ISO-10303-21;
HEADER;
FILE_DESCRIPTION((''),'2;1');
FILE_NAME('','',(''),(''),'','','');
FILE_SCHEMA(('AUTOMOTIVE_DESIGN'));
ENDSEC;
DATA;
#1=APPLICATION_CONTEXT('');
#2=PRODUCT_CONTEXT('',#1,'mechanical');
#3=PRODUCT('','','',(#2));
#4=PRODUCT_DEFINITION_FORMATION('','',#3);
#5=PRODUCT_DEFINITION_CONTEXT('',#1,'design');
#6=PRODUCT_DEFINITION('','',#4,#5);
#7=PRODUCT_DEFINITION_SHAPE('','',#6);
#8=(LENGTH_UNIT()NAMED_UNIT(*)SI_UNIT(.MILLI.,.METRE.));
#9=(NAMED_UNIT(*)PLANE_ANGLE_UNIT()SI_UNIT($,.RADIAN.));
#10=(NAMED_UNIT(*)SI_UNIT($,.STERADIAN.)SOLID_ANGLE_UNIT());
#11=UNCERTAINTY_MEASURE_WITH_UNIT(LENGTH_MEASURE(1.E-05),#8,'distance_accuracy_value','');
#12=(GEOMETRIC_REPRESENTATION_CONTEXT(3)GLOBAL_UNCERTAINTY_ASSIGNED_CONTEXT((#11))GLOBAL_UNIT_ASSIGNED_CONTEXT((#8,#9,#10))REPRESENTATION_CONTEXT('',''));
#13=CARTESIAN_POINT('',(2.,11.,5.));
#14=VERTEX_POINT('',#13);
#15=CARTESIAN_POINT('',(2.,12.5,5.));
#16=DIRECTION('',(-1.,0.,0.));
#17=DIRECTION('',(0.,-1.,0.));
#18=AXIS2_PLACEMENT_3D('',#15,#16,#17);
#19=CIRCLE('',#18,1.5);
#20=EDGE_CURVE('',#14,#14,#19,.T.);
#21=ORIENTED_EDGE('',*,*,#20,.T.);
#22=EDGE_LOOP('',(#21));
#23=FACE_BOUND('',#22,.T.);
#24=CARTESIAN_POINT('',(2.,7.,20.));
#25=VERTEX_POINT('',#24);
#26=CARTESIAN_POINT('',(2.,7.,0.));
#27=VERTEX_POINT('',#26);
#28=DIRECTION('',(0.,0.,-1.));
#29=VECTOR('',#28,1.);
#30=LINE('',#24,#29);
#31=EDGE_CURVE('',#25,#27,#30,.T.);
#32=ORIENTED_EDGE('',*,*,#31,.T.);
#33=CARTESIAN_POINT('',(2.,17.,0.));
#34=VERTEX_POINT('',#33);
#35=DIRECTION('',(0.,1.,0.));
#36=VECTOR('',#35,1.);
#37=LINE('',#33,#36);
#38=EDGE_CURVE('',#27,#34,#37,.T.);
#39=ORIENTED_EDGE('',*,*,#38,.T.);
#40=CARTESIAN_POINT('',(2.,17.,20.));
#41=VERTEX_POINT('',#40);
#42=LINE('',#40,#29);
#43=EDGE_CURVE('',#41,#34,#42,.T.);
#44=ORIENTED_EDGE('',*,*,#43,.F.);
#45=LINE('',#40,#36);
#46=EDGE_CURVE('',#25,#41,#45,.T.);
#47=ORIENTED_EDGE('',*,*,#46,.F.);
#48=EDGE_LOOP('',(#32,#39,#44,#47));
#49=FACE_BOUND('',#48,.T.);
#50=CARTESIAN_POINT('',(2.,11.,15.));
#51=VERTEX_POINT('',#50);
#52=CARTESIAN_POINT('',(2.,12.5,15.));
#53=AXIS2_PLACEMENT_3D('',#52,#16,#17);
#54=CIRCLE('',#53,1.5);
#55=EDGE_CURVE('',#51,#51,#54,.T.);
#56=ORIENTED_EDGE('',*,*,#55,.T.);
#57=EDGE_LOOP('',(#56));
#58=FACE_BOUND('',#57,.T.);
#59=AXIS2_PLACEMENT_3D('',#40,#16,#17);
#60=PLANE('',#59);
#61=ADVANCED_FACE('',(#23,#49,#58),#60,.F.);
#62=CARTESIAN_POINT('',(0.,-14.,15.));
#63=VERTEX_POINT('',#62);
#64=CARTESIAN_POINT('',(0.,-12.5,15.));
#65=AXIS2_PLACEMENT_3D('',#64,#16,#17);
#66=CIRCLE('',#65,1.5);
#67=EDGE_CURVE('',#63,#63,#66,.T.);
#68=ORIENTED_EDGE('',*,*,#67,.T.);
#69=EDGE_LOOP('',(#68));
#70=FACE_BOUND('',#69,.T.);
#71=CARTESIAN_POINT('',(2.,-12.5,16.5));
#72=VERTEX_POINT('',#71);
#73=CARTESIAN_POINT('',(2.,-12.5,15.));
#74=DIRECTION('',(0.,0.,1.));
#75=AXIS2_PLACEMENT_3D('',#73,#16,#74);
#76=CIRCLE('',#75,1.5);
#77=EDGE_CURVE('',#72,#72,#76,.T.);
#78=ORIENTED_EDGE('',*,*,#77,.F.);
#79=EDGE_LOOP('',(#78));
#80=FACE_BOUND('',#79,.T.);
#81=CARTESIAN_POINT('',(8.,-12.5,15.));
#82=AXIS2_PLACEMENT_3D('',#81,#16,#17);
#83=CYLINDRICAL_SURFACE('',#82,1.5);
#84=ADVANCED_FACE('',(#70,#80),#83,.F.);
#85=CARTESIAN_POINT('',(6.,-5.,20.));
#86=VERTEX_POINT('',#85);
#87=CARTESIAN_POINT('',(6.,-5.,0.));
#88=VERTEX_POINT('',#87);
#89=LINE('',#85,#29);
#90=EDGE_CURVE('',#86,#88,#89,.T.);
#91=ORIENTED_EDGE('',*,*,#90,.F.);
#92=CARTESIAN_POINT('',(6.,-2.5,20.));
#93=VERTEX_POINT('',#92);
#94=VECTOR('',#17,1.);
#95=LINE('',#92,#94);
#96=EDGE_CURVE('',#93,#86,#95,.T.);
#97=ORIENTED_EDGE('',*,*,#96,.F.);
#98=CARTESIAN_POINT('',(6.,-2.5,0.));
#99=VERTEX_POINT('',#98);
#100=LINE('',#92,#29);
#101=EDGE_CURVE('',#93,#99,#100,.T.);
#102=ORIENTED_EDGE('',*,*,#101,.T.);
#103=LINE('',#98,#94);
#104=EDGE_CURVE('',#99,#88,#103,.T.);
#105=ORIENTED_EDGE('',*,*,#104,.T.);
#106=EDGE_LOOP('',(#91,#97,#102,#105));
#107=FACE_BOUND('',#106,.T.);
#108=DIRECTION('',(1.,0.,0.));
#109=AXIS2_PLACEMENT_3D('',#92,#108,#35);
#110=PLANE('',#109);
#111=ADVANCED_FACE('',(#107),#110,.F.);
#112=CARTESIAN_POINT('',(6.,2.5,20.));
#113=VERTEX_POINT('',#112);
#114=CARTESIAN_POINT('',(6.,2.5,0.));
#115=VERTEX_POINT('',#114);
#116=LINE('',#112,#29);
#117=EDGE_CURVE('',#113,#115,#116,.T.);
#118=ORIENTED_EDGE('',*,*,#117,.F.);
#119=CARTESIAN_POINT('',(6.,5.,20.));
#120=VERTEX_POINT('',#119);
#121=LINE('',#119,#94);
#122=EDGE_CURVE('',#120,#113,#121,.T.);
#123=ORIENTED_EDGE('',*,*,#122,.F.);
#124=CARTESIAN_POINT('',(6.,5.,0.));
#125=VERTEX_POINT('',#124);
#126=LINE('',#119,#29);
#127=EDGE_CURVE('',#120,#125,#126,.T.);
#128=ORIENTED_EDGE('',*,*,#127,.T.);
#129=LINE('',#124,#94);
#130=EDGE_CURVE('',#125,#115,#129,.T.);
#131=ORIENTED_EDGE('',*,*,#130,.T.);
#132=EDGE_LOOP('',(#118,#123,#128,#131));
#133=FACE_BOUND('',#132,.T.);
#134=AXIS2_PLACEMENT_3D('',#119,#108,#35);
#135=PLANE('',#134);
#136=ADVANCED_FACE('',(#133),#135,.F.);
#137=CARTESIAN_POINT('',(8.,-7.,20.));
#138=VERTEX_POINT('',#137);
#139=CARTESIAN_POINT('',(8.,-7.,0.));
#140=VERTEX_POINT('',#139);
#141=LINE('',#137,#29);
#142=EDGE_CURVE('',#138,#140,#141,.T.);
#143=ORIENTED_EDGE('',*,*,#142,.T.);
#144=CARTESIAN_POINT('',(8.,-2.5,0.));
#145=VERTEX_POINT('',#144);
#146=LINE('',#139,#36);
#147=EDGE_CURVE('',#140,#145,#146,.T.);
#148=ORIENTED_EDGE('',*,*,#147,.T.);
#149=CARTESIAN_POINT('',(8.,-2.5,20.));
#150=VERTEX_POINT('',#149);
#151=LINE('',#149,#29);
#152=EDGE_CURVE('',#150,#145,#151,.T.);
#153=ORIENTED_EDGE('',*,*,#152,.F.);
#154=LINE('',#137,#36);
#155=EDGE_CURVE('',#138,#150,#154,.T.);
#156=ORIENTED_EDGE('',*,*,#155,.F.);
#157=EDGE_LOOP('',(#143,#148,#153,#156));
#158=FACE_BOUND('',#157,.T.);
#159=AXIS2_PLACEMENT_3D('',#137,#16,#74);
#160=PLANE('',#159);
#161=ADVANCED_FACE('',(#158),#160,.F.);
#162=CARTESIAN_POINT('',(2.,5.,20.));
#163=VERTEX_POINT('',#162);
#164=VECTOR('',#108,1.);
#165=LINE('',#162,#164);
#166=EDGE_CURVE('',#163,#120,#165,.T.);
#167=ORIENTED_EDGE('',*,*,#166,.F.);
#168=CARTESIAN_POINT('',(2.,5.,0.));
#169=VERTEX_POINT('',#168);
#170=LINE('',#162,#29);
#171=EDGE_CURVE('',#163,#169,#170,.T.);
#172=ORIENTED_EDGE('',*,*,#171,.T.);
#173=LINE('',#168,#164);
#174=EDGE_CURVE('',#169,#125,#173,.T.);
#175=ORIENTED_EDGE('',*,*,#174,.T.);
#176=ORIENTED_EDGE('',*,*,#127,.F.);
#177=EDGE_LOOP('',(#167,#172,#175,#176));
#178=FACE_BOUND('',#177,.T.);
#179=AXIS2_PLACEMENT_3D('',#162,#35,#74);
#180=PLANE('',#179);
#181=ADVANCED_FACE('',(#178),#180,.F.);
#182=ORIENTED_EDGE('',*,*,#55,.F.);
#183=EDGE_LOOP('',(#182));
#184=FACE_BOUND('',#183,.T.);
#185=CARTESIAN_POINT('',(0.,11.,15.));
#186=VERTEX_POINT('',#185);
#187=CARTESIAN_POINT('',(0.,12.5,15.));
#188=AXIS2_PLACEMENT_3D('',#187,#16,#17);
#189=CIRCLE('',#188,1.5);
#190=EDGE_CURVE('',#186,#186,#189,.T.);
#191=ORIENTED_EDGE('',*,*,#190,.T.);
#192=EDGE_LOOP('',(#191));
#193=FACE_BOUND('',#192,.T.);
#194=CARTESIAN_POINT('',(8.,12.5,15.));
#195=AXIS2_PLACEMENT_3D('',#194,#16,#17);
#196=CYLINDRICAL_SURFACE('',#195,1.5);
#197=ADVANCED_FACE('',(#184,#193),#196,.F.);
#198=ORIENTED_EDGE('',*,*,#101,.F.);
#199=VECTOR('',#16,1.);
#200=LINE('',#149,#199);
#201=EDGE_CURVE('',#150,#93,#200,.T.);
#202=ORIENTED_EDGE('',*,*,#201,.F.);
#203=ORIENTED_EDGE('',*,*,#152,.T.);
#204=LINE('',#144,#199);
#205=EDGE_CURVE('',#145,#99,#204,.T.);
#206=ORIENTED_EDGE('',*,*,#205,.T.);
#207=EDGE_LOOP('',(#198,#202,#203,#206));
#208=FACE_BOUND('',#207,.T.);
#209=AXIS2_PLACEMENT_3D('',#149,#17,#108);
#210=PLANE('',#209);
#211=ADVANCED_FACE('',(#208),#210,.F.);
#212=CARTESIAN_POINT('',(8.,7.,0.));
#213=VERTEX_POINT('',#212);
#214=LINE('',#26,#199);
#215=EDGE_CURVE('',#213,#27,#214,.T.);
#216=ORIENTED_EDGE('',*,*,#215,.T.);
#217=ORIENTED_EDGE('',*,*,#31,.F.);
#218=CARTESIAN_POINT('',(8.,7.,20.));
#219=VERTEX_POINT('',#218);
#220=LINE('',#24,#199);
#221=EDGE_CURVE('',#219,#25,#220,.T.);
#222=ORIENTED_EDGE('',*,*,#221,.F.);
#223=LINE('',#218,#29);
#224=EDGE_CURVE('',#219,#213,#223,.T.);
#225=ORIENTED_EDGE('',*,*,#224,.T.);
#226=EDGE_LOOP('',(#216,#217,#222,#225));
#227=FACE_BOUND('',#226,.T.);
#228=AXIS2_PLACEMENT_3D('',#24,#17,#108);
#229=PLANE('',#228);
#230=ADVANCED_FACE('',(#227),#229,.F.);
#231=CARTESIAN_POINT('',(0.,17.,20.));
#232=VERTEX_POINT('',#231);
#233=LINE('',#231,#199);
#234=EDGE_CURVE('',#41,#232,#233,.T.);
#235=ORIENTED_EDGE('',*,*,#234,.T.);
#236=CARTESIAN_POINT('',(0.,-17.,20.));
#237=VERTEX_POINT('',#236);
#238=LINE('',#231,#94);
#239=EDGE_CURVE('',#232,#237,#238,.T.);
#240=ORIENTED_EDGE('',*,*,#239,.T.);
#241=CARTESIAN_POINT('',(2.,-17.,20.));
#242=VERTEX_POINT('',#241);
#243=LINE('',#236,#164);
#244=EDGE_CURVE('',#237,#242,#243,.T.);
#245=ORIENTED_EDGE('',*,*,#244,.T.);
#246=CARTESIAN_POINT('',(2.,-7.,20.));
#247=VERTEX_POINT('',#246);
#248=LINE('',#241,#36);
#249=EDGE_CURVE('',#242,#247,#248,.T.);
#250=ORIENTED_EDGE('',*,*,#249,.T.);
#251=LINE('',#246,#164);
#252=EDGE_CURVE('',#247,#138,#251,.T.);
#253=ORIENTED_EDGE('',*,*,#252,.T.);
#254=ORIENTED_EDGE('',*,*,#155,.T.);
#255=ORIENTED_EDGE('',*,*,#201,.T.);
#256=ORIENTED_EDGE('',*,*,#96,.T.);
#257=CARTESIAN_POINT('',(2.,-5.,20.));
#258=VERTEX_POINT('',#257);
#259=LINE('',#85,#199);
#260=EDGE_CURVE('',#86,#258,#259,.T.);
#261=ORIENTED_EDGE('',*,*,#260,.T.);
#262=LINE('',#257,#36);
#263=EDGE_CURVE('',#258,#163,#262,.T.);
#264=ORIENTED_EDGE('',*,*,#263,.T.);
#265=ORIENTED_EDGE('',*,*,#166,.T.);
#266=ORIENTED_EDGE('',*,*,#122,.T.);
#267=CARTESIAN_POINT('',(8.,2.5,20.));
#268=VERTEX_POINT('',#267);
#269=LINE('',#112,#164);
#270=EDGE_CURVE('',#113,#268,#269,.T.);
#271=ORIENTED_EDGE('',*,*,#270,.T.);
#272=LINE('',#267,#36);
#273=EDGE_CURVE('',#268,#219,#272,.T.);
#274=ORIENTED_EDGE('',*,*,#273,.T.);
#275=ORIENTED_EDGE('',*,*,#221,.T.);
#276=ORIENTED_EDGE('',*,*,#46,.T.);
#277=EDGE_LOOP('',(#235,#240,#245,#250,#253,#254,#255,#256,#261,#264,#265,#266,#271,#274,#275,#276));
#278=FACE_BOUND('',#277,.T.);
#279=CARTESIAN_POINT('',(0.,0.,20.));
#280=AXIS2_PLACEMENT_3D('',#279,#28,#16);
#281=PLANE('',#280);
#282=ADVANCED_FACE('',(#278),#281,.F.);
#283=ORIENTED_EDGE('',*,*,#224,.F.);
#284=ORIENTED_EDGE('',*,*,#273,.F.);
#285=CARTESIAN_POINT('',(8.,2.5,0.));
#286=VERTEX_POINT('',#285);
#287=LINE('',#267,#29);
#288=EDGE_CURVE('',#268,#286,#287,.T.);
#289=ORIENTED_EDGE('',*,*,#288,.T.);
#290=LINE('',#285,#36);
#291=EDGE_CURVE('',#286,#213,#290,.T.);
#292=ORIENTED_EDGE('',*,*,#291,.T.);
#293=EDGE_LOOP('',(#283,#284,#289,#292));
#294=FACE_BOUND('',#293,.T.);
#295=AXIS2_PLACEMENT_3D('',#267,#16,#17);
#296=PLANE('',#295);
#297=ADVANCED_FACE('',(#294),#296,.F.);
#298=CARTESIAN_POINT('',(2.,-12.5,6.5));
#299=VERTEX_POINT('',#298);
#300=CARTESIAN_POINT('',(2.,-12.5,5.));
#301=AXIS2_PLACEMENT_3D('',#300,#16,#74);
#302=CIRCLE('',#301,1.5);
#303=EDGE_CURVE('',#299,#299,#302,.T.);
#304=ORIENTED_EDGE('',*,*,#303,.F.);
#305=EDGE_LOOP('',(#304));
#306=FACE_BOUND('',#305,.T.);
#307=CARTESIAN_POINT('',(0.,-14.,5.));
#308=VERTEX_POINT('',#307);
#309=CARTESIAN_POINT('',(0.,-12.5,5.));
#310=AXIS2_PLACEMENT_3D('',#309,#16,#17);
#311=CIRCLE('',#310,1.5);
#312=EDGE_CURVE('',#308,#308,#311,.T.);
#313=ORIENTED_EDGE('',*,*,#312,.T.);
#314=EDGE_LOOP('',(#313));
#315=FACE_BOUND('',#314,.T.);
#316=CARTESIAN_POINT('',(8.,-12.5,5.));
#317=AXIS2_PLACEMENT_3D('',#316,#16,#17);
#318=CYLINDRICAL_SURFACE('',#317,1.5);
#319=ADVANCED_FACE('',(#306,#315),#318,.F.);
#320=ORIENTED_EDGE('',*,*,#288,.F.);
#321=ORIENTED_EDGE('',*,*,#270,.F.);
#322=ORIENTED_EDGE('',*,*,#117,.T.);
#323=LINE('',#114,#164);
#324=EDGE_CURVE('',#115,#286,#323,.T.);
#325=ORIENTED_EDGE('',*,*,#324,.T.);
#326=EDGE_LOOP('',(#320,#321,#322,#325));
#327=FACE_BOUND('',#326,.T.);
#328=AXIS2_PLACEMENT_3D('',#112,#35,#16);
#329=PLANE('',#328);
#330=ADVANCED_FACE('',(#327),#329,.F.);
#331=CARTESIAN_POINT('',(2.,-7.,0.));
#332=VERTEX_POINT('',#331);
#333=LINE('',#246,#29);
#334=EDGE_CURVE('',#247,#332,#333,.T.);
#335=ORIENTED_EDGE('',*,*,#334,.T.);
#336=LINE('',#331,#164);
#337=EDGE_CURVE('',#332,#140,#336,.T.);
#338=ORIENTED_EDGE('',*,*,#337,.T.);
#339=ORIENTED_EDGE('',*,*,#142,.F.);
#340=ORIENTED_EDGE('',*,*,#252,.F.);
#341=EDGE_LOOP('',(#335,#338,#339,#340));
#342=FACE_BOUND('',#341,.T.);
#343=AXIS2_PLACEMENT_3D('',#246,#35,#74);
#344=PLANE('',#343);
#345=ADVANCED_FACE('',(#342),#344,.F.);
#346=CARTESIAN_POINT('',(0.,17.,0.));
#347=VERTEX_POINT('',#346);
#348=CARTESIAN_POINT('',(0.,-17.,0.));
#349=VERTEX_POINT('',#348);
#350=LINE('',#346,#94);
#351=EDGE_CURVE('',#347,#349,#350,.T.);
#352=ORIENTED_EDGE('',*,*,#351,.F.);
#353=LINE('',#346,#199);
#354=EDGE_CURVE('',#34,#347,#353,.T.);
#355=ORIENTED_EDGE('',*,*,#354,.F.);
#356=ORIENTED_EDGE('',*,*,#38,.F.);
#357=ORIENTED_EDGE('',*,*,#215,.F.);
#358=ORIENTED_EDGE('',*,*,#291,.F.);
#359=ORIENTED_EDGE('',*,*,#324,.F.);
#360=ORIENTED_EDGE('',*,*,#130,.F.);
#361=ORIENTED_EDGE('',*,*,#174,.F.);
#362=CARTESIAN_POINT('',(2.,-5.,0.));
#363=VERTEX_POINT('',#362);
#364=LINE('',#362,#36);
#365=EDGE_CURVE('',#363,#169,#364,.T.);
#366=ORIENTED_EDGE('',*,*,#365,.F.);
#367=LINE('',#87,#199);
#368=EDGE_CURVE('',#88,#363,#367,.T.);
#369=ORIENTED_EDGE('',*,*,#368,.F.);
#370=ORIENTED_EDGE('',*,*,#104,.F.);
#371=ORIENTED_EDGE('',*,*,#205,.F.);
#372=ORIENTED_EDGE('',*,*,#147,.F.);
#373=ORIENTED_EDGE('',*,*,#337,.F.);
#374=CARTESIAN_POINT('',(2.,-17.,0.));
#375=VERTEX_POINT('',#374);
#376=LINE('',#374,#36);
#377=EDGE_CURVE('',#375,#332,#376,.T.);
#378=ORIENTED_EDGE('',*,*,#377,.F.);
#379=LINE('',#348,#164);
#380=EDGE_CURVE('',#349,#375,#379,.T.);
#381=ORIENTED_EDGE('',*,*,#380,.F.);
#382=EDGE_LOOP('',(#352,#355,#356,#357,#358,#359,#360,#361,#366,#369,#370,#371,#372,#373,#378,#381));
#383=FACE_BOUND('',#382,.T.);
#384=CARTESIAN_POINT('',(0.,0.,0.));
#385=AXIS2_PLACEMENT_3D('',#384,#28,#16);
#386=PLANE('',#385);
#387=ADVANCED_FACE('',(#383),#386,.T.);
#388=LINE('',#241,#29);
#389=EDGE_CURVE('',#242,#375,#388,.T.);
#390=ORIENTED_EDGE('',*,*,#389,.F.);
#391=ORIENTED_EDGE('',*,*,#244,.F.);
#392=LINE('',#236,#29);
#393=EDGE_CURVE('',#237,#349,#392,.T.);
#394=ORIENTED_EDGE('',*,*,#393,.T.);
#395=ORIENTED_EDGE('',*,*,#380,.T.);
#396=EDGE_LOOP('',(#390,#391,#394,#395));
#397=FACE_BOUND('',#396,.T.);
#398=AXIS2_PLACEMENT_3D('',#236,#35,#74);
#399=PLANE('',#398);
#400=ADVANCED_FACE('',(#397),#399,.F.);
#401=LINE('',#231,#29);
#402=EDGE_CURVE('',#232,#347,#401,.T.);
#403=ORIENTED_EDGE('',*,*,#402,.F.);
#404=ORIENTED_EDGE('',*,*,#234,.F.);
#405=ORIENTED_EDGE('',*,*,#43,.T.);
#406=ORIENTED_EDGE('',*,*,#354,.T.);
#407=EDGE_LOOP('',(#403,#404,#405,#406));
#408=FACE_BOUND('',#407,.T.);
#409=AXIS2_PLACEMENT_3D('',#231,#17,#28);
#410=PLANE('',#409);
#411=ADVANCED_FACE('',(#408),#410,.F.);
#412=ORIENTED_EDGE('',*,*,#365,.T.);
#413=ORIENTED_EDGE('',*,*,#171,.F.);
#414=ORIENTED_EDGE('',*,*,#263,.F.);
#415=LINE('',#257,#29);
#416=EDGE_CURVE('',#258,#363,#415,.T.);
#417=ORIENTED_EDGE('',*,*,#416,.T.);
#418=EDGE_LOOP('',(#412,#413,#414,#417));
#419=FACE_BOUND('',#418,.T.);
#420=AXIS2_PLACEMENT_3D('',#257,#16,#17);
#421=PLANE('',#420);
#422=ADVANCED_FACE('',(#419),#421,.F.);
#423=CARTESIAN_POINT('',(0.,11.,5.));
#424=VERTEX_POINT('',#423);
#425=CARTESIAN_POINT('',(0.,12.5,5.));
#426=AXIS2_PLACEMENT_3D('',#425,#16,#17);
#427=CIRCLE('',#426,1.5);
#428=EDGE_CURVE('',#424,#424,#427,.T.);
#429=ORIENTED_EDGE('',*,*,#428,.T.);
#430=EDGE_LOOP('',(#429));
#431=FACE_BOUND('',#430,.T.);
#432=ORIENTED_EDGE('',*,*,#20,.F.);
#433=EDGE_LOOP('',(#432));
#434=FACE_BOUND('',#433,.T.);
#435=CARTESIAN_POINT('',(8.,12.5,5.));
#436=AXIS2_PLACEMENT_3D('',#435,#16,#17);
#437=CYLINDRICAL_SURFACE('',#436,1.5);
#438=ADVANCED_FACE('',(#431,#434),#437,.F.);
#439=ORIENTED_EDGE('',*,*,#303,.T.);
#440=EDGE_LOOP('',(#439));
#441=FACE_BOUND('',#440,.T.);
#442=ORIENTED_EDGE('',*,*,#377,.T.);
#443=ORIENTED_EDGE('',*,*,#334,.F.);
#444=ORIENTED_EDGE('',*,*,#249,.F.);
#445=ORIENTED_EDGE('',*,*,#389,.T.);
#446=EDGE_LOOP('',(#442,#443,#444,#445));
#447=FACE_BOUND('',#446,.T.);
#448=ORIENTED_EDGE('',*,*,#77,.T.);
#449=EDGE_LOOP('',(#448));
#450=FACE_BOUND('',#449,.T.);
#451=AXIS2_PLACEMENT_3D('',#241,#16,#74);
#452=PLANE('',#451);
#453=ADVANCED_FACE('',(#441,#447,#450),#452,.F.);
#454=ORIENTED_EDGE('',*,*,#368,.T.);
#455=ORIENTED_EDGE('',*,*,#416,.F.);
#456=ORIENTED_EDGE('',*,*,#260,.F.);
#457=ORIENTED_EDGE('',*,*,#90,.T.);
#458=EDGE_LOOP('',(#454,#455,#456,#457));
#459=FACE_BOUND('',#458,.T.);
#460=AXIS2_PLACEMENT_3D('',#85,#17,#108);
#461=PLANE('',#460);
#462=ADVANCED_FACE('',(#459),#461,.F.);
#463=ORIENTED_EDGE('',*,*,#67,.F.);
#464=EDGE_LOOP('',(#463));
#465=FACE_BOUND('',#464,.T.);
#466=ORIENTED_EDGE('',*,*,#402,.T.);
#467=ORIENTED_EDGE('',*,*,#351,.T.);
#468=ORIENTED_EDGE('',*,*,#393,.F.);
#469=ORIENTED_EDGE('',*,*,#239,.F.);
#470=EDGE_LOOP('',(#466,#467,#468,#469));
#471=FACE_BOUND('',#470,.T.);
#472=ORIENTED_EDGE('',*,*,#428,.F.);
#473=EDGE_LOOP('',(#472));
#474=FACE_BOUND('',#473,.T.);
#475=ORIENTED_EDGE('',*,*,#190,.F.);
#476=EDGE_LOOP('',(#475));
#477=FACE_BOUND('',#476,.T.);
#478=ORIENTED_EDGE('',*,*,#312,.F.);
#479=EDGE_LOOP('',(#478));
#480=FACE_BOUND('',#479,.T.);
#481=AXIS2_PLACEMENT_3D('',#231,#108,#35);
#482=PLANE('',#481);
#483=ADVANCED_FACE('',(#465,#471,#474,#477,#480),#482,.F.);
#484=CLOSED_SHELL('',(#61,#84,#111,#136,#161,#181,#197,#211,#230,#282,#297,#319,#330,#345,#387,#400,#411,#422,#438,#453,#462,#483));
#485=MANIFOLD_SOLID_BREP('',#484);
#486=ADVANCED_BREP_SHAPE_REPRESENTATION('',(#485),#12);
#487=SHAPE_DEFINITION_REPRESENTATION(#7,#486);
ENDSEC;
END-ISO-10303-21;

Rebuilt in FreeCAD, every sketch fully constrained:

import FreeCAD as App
import Part
import Sketcher
from FreeCAD import Vector
Q = App.Units.Quantity


def add_polygon(sketch, points):
    """Adds a closed chain of lines whose ends are joined by coincident constraints."""
    first, n = sketch.GeometryCount, len(points)
    for a, b in zip(points, points[1:] + points[:1]):
        sketch.addGeometry(Part.LineSegment(App.Vector(*a, 0), App.Vector(*b, 0)), False)
    for i in range(n):
        sketch.addConstraint(Sketcher.Constraint("Coincident", first + i, 2, first + (i + 1) % n, 1))

doc = App.newDocument("Part")
body = doc.addObject("PartDesign::Body", "Body")

# Sketch on XY plane
sketch1 = body.newObject("Sketcher::SketchObject", "Sketch")
sketch1.AttachmentSupport = (doc.getObject("XY_Plane"), [""])
sketch1.MapMode = "FlatFace"
add_polygon(sketch1, [(0, 17), (0, -17), (2, -17), (2, -7), (8, -7), (8, -2.5), (6, -2.5), (6, -5), (2, -5), (2, 5), (6, 5), (6, 2.5), (8, 2.5), (8, 7), (2, 7), (2, 17)])  # lines 0-15
sketch1.addConstraint([
    Sketcher.Constraint("Vertical", 0),
    Sketcher.Constraint("Horizontal", 1),
    Sketcher.Constraint("Vertical", 2),
    Sketcher.Constraint("Horizontal", 3),
    Sketcher.Constraint("Vertical", 4),
    Sketcher.Constraint("Horizontal", 5),
    Sketcher.Constraint("Vertical", 6),
    Sketcher.Constraint("Horizontal", 7),
    Sketcher.Constraint("Vertical", 8),
    Sketcher.Constraint("Horizontal", 9),
    Sketcher.Constraint("Vertical", 10),
    Sketcher.Constraint("Horizontal", 11),
    Sketcher.Constraint("Vertical", 12),
    Sketcher.Constraint("Horizontal", 13),
    Sketcher.Constraint("Vertical", 14),
    Sketcher.Constraint("Horizontal", 15),
    Sketcher.Constraint("Symmetric", 0, 2, 15, 2, -1, 1),
    Sketcher.Constraint("Symmetric", 6, 2, 9, 2, -1),
    Sketcher.Constraint("Symmetric", 4, 2, 11, 2, -1),
    Sketcher.Constraint("Symmetric", 2, 2, 13, 2, -1),
    Sketcher.Constraint("Vertical", 2, 2, 7, 2),
    Sketcher.Constraint("Equal", 1, 5),
    Sketcher.Constraint("Equal", 2, 8),
    Sketcher.Constraint("DistanceX", 1, 1, 1, 2, Q("2 mm")),
    Sketcher.Constraint("DistanceX", 3, 1, 3, 2, Q("6 mm")),
    Sketcher.Constraint("DistanceY", 0, 2, 0, 1, Q("34 mm")),
    Sketcher.Constraint("DistanceY", 2, 1, 2, 2, Q("10 mm")),
    Sketcher.Constraint("DistanceY", 4, 1, 4, 2, Q("4.5 mm")),
])
pad1 = body.newObject("PartDesign::Pad", "Pad")
pad1.Profile = sketch1
pad1.Length = 20

# Sketch on YZ plane
sketch2 = body.newObject("Sketcher::SketchObject", "Sketch001")
sketch2.AttachmentSupport = (doc.getObject("YZ_Plane"), [""])
sketch2.MapMode = "FlatFace"
sketch2.addGeometry([
    Part.Circle(Vector(12.5, 5, 0), Vector(0, 0, 1), 1.5),
    Part.Circle(Vector(-12.5, 5, 0), Vector(0, 0, 1), 1.5),
    Part.Circle(Vector(-12.5, 15, 0), Vector(0, 0, 1), 1.5),
    Part.Circle(Vector(12.5, 15, 0), Vector(0, 0, 1), 1.5),
], False)
sketch2.addConstraint([
    Sketcher.Constraint("Equal", 0, 1),
    Sketcher.Constraint("Equal", 1, 2),
    Sketcher.Constraint("Equal", 2, 3),
    Sketcher.Constraint("Symmetric", 0, 3, 1, 3, -2),
    Sketcher.Constraint("Symmetric", 2, 3, 3, 3, -2),
    Sketcher.Constraint("Vertical", 1, 3, 2, 3),
    Sketcher.Constraint("Diameter", 0, Q("3 mm")),
    Sketcher.Constraint("DistanceY", -1, 1, 0, 3, Q("5 mm")),
    Sketcher.Constraint("DistanceY", -1, 1, 2, 3, Q("15 mm")),
    Sketcher.Constraint("DistanceX", 1, 3, 0, 3, Q("25 mm")),
])
pocket1 = body.newObject("PartDesign::Pocket", "Pocket")
pocket1.Profile = sketch2
pocket1.Type = "ThroughAll"
pocket1.Reversed = True

doc.recompute()
